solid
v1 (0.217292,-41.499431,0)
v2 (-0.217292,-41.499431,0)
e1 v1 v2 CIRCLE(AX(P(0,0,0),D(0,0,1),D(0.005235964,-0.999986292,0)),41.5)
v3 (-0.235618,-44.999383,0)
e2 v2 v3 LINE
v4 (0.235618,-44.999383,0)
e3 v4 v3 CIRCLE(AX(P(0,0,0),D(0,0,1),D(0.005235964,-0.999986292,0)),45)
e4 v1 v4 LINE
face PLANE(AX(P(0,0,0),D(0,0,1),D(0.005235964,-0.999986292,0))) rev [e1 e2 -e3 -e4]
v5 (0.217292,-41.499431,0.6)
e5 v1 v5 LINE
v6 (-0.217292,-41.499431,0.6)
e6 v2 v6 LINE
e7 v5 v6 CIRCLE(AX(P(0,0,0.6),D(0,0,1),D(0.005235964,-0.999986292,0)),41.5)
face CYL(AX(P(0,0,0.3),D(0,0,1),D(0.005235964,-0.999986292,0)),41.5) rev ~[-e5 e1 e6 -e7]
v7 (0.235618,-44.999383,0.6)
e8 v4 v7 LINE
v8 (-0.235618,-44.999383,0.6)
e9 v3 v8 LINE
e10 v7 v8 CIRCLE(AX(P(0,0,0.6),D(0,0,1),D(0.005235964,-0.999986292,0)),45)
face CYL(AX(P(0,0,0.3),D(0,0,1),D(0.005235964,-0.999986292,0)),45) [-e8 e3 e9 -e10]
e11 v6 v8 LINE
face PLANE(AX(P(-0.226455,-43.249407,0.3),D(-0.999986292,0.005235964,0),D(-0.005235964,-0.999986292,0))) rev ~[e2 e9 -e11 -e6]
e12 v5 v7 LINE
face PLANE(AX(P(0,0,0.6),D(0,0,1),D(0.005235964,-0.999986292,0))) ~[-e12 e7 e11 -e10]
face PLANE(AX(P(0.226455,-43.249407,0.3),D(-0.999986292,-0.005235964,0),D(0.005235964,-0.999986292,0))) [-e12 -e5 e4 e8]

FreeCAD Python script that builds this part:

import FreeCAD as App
import Part
import Sketcher
from FreeCAD import Vector


def add_polygon(sketch, points):
    """Adds a closed chain of lines whose ends are joined by coincident constraints."""
    first, n = sketch.GeometryCount, len(points)
    for a, b in zip(points, points[1:] + points[:1]):
        sketch.addGeometry(Part.LineSegment(App.Vector(*a, 0), App.Vector(*b, 0)), False)
    for i in range(n):
        sketch.addConstraint(Sketcher.Constraint("Coincident", first + i, 2, first + (i + 1) % n, 1))

doc = App.newDocument("Part")
params = doc.addObject("Spreadsheet::Sheet", "Params")
for row, (alias, value) in enumerate([
    ("sketch1_width", "3.5 mm"),
    ("sketch1_height", "0.6 mm"),
    ("revolution_angle", "359.4 deg"),
], start=1):
    params.set(f"A{row}", alias)
    params.set(f"B{row}", "=" + value)
    params.setAlias(f"B{row}", alias)

body = doc.addObject("PartDesign::Body", "Body")

sketch1 = doc.addObject("Sketcher::SketchObject", "Sketch")
body.addObject(sketch1)
sketch1.Placement = App.Placement(Vector(0, 0, 0), App.Rotation(Vector(0.005235964, -0.999986292, 0), Vector(0, 0, 1), Vector(-0.999986292, -0.005235964, 0), "ZXY"))
add_polygon(sketch1, [(41.5, 0.6), (41.5, 0), (45, 0), (45, 0.6)])
sketch1.addConstraint([
    Sketcher.Constraint("Vertical", 0),
    Sketcher.Constraint("Horizontal", 1),
    Sketcher.Constraint("Vertical", 2),
    Sketcher.Constraint("Horizontal", 3),
    Sketcher.Constraint("PointOnObject", 0, 2, -1),
    Sketcher.Constraint("DistanceX", 1, 1, 1, 2, 3.5),
    Sketcher.Constraint("DistanceY", 0, 2, 0, 1, 0.6),
    Sketcher.Constraint("DistanceX", -1, 1, 1, 2, 45.0),
])
sketch1.setExpression("Constraints[9]", "Params.sketch1_width")
sketch1.setExpression("Constraints[10]", "Params.sketch1_height")
revolution = doc.addObject("PartDesign::Revolution", "Revolution")
body.addObject(revolution)
revolution.Profile = sketch1
revolution.ReferenceAxis = (sketch1, ["V_Axis"])
revolution.setExpression("Angle", "Params.revolution_angle")

doc.recompute()
